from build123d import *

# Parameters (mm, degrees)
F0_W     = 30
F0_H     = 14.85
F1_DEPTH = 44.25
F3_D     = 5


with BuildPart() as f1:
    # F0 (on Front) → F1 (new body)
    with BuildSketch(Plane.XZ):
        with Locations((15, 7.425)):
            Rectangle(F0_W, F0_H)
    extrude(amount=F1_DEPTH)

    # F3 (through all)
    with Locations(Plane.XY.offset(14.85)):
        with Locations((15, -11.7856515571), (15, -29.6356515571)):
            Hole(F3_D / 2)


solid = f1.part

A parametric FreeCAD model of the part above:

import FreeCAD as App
import Part
import Sketcher

V = App.Vector

doc = App.newDocument("Part")
body = doc.addObject("PartDesign::Body", "Body")

# Sketch on XZ plane
sketch1 = body.newObject("Sketcher::SketchObject", "Sketch")
sketch1.AttachmentSupport = (doc.getObject("XZ_Plane"), [""])
sketch1.MapMode = "FlatFace"
sketch1.addGeometry([
    Part.LineSegment(V(0, 15, 0), V(0, 0, 0)),
    Part.LineSegment(V(0, 0, 0), V(30, 0, 0)),
    Part.LineSegment(V(30, 0, 0), V(30, 15, 0)),
    Part.LineSegment(V(30, 15, 0), V(0, 15, 0)),
], False)
sketch1.addConstraint([
    Sketcher.Constraint("Coincident", 0, 2, 1, 1),
    Sketcher.Constraint("Coincident", 1, 2, 2, 1),
    Sketcher.Constraint("Coincident", 2, 2, 3, 1),
    Sketcher.Constraint("Coincident", 3, 2, 0, 1),
    Sketcher.Constraint("Vertical", 0),
    Sketcher.Constraint("Horizontal", 1),
    Sketcher.Constraint("Vertical", 2),
    Sketcher.Constraint("Horizontal", 3),
    Sketcher.Constraint("Coincident", 0, 2, -1, 1),
    Sketcher.Constraint("DistanceX", 1, 1, 1, 2, 30.0),
    Sketcher.Constraint("DistanceY", 0, 2, 0, 1, 14.85),
])
pad1 = body.newObject("PartDesign::Pad", "Pad")
pad1.Profile = sketch1
pad1.Length = 44.25

# Sketch on XY plane
sketch2 = body.newObject("Sketcher::SketchObject", "Sketch001")
sketch2.AttachmentSupport = (doc.getObject("XY_Plane"), [""])
sketch2.MapMode = "FlatFace"
sketch2.AttachmentOffset = App.Placement(V(0, 0, 14.85), App.Rotation())
sketch2.addGeometry([
    Part.Circle(V(15, -11.8, 0), V(0, 0, 1), 2.5),
    Part.Circle(V(15, -29.6, 0), V(0, 0, 1), 2.5),
], False)
sketch2.addConstraint([
    Sketcher.Constraint("Equal", 0, 1),
    Sketcher.Constraint("Vertical", 0, 3, 1, 3),
    Sketcher.Constraint("Diameter", 0, 5.0),
    Sketcher.Constraint("DistanceX", -1, 1, 0, 3, 15.0),
    Sketcher.Constraint("DistanceY", 1, 3, 0, 3, 17.85),
    Sketcher.Constraint("DistanceY", 0, 3, -1, 1, 11.785652),
])
doc.recompute()
hole = body.newObject("PartDesign::Hole", "Hole")
hole.Profile = sketch2
hole.ThreadType = "None"
hole.Diameter = 5
hole.DepthType = "ThroughAll"

doc.recompute()
